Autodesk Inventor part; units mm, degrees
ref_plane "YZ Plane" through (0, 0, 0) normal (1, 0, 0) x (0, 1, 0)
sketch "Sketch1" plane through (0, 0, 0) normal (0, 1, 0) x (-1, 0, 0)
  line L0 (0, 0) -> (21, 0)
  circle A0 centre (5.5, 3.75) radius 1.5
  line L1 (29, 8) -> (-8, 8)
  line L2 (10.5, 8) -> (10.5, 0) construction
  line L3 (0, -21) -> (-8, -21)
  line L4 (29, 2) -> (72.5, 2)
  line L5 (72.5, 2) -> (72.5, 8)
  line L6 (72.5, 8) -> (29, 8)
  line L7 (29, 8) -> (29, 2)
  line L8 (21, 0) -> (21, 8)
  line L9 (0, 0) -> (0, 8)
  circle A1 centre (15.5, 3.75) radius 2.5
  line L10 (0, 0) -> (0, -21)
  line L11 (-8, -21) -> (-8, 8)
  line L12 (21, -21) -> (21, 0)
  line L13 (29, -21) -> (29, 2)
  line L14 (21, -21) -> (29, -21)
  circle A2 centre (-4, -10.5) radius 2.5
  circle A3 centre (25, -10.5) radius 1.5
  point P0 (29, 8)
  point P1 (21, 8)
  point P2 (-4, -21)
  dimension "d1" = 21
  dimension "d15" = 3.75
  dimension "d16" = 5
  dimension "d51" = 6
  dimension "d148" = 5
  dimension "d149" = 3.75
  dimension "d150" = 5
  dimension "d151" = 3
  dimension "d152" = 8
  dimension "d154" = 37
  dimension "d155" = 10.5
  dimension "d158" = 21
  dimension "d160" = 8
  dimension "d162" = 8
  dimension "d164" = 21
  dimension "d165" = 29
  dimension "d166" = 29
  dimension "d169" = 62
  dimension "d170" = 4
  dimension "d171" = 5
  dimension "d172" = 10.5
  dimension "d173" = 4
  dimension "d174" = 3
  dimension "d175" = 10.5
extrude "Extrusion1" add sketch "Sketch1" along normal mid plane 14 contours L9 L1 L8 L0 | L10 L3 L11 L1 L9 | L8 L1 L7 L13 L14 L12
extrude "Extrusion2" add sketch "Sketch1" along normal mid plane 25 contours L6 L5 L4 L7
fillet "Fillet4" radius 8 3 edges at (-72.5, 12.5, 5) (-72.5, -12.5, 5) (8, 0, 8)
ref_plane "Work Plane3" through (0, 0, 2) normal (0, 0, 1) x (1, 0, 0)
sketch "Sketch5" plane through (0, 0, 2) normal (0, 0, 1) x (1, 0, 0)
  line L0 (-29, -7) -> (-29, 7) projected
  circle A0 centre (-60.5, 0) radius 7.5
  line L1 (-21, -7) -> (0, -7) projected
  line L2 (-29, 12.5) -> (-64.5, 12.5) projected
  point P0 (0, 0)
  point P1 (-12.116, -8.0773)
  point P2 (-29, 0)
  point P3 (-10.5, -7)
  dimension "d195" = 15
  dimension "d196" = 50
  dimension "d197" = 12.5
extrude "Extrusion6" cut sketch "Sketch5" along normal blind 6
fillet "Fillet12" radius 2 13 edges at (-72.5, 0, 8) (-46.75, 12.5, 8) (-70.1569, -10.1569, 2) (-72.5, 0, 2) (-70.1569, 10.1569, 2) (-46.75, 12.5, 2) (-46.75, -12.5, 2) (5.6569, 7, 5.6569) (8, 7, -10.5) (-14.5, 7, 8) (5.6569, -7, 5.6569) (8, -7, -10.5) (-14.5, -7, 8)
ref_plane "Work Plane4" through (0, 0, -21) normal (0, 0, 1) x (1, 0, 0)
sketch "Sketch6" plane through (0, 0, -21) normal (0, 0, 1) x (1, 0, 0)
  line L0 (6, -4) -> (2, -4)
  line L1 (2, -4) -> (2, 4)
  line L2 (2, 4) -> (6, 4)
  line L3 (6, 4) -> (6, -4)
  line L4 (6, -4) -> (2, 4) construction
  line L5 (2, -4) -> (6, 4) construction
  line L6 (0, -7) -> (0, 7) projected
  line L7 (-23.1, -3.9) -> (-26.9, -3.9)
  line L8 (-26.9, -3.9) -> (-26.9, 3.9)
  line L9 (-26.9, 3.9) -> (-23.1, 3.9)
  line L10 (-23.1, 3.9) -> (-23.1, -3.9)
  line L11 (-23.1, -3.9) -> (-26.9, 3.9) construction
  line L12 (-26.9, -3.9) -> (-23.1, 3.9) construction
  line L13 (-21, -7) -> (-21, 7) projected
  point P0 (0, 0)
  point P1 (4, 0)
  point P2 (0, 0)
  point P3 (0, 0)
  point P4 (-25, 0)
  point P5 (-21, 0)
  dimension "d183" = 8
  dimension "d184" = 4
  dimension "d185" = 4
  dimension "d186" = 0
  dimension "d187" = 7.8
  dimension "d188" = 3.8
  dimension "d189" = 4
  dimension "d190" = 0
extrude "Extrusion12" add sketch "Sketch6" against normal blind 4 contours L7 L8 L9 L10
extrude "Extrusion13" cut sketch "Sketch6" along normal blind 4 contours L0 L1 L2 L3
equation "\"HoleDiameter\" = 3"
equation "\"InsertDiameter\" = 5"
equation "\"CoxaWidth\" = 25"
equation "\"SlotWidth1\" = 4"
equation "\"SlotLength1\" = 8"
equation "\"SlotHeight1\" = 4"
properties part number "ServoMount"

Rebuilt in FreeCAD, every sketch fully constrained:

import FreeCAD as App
import Part
import Sketcher
from FreeCAD import Vector
Q = App.Units.Quantity


def edges_at(feature, points):
    """Names of the edges that pass closest to the given points."""
    edges = feature.Shape.Edges
    near = lambda p: min(range(len(edges)), key=lambda i: edges[i].distToShape(Part.Vertex(*p))[0])
    return sorted({f"Edge{near(p) + 1}" for p in points})


def add_polygon(sketch, points):
    """Adds a closed chain of lines whose ends are joined by coincident constraints."""
    first, n = sketch.GeometryCount, len(points)
    for a, b in zip(points, points[1:] + points[:1]):
        sketch.addGeometry(Part.LineSegment(App.Vector(*a, 0), App.Vector(*b, 0)), False)
    for i in range(n):
        sketch.addConstraint(Sketcher.Constraint("Coincident", first + i, 2, first + (i + 1) % n, 1))

doc = App.newDocument("Part")
params = doc.addObject("Spreadsheet::Sheet", "Params")
for row, (alias, value) in enumerate([
    ("sketch1_diameter", "3 mm"),
    ("sketch1_diameter2", "5 mm"),
    ("sketch1_width", "8 mm"),
    ("sketch1_width2", "21 mm"),
    ("sketch1_height", "29 mm"),
    ("pad1_length", "14 mm"),
    ("sketch2_height", "6 mm"),
    ("sketch2_width", "43.5 mm"),
    ("pad2_length", "25 mm"),
    ("fillet_radius", "8 mm"),
    ("sketch3_diameter", "15 mm"),
    ("pocket1_length", "6 mm"),
    ("fillet2_radius", "2 mm"),
    ("sketch4_width", "3.8 mm"),
    ("sketch4_height", "7.8 mm"),
    ("pad3_length", "4 mm"),
    ("sketch5_width", "4 mm"),
    ("sketch5_height", "8 mm"),
    ("pocket2_length", "4 mm"),
], start=1):
    params.set(f"A{row}", alias)
    params.set(f"B{row}", "=" + value)
    params.setAlias(f"B{row}", alias)

body = doc.addObject("PartDesign::Body", "Body")

# Sketch on XZ plane
sketch1 = doc.addObject("Sketcher::SketchObject", "Sketch")
body.addObject(sketch1)
sketch1.AttachmentSupport = (doc.XZ_Plane, [""])
sketch1.MapMode = "FlatFace"
add_polygon(sketch1, [(8, 8), (8, -21), (0, -21), (0, 0), (-21, 0), (-21, -21), (-29, -21), (-29, 8)])  # lines 0-7
sketch1.addGeometry(Part.Circle(Vector(-5.5, 3.75, 0), Vector(0, 0, 1), 1.5), False)  # 8
sketch1.addGeometry(Part.Circle(Vector(-15.5, 3.75, 0), Vector(0, 0, 1), 2.5), False)  # 9
sketch1.addGeometry(Part.Circle(Vector(4, -10.5, 0), Vector(0, 0, 1), 2.5), False)  # 10
sketch1.addGeometry(Part.Circle(Vector(-25, -10.5, 0), Vector(0, 0, 1), 1.5), False)  # 11
sketch1.addConstraint(Sketcher.Constraint("Vertical", 0))
sketch1.addConstraint(Sketcher.Constraint("Horizontal", 1))
sketch1.addConstraint(Sketcher.Constraint("Vertical", 2))
sketch1.addConstraint(Sketcher.Constraint("Horizontal", 3))
sketch1.addConstraint(Sketcher.Constraint("Vertical", 4))
sketch1.addConstraint(Sketcher.Constraint("Horizontal", 5))
sketch1.addConstraint(Sketcher.Constraint("Vertical", 6))
sketch1.addConstraint(Sketcher.Constraint("Horizontal", 7))
sketch1.addConstraint(Sketcher.Constraint("Coincident", 2, 2, -1, 1))
sketch1.addConstraint(Sketcher.Constraint("Equal", 9, 10))
sketch1.addConstraint(Sketcher.Constraint("Equal", 8, 11))
sketch1.addConstraint(Sketcher.Constraint("Horizontal", 8, 3, 9, 3))
sketch1.addConstraint(Sketcher.Constraint("Horizontal", 10, 3, 11, 3))
sketch1.addConstraint(Sketcher.Constraint("Horizontal", 1, 2, 4, 2))
sketch1.addConstraint(Sketcher.Constraint("Equal", 1, 5))
sketch1.addConstraint(Sketcher.Constraint("Equal", 3, 2))
sketch1.addConstraint(Sketcher.Constraint("Diameter", 8, Q("3 mm")))
sketch1.addConstraint(Sketcher.Constraint("Diameter", 9, Q("5 mm")))
sketch1.addConstraint(Sketcher.Constraint("DistanceX", 1, 2, 1, 1, Q("8 mm")))
sketch1.addConstraint(Sketcher.Constraint("DistanceX", 3, 2, 3, 1, Q("21 mm")))
sketch1.addConstraint(Sketcher.Constraint("DistanceY", 0, 2, 0, 1, Q("29 mm")))
sketch1.addConstraint(Sketcher.Constraint("DistanceX", -1, 1, 10, 3, Q("4 mm")))
sketch1.addConstraint(Sketcher.Constraint("DistanceX", 11, 3, 10, 3, Q("29 mm")))
sketch1.addConstraint(Sketcher.Constraint("DistanceY", 10, 3, -1, 1, Q("10.5 mm")))
sketch1.addConstraint(Sketcher.Constraint("DistanceY", -1, 1, 8, 3, Q("3.75 mm")))
sketch1.addConstraint(Sketcher.Constraint("DistanceX", 9, 3, 8, 3, Q("10 mm")))
sketch1.addConstraint(Sketcher.Constraint("DistanceX", 8, 3, -1, 1, Q("5.5 mm")))
sketch1.setExpression("Constraints[24]", "Params.sketch1_diameter")
sketch1.setExpression("Constraints[25]", "Params.sketch1_diameter2")
sketch1.setExpression("Constraints[26]", "Params.sketch1_width")
sketch1.setExpression("Constraints[27]", "Params.sketch1_width2")
sketch1.setExpression("Constraints[28]", "Params.sketch1_height")
pad1 = doc.addObject("PartDesign::Pad", "Pad")
body.addObject(pad1)
pad1.Profile = sketch1
pad1.setExpression("Length", "Params.pad1_length")
pad1.Midplane = True

# Sketch on XZ plane
sketch2 = doc.addObject("Sketcher::SketchObject", "Sketch001")
body.addObject(sketch2)
sketch2.AttachmentSupport = (doc.XZ_Plane, [""])
sketch2.MapMode = "FlatFace"
add_polygon(sketch2, [(-72.5, 8), (-29, 8), (-29, 2), (-72.5, 2)])  # lines 0-3
sketch2.addConstraint(Sketcher.Constraint("Horizontal", 0))
sketch2.addConstraint(Sketcher.Constraint("Vertical", 1))
sketch2.addConstraint(Sketcher.Constraint("Horizontal", 2))
sketch2.addConstraint(Sketcher.Constraint("Vertical", 3))
sketch2.addConstraint(Sketcher.Constraint("DistanceY", 1, 2, 1, 1, Q("6 mm")))
sketch2.addConstraint(Sketcher.Constraint("DistanceX", 0, 2, -1, 1, Q("29 mm")))
sketch2.addConstraint(Sketcher.Constraint("DistanceY", -1, 1, 0, 2, Q("8 mm")))
sketch2.addConstraint(Sketcher.Constraint("DistanceX", 0, 1, 0, 2, Q("43.5 mm")))
sketch2.setExpression("Constraints[8]", "Params.sketch2_height")
sketch2.setExpression("Constraints[11]", "Params.sketch2_width")
pad2 = doc.addObject("PartDesign::Pad", "Pad001")
body.addObject(pad2)
pad2.Profile = sketch2
pad2.setExpression("Length", "Params.pad2_length")
pad2.Midplane = True
doc.recompute()

fillet = doc.addObject("PartDesign::Fillet", "Fillet")
body.addObject(fillet)
fillet.Base = (pad2, edges_at(pad2, [(-72.5, 12.5, 5), (-72.5, -12.5, 5), (8, 0, 8)]))
fillet.setExpression("Radius", "Params.fillet_radius")

# Sketch on XY plane
sketch3 = doc.addObject("Sketcher::SketchObject", "Sketch002")
body.addObject(sketch3)
sketch3.AttachmentSupport = (doc.XY_Plane, [""])
sketch3.MapMode = "FlatFace"
sketch3.AttachmentOffset = App.Placement(Vector(0, 0, 2), App.Rotation())
sketch3.addGeometry(Part.Circle(Vector(-60.5, 0, 0), Vector(0, 0, 1), 7.5), False)
sketch3.addConstraint(Sketcher.Constraint("PointOnObject", 0, 3, -1))
sketch3.addConstraint(Sketcher.Constraint("Diameter", 0, Q("15 mm")))
sketch3.addConstraint(Sketcher.Constraint("DistanceX", 0, 3, -1, 1, Q("60.5 mm")))
sketch3.setExpression("Constraints[1]", "Params.sketch3_diameter")
pocket1 = doc.addObject("PartDesign::Pocket", "Pocket")
body.addObject(pocket1)
pocket1.Profile = sketch3
pocket1.setExpression("Length", "Params.pocket1_length")
pocket1.Reversed = True
doc.recompute()

fillet2 = doc.addObject("PartDesign::Fillet", "Fillet001")
body.addObject(fillet2)
fillet2.Base = (pocket1, edges_at(pocket1, [
    (-72.5, 0, 8),
    (-46.75, 12.5, 8),
    (-70.157, -10.157, 2),
    (-72.5, 0, 2),
    (-70.157, 10.157, 2),
    (-46.75, 12.5, 2),
    (-46.75, -12.5, 2),
    (5.657, 7, 5.657),
    (8, 7, -10.5),
    (-14.5, 7, 8),
    (5.657, -7, 5.657),
    (8, -7, -10.5),
    (-14.5, -7, 8),
]))
fillet2.setExpression("Radius", "Params.fillet2_radius")

# Sketch on XY plane
sketch4 = doc.addObject("Sketcher::SketchObject", "Sketch003")
body.addObject(sketch4)
sketch4.AttachmentSupport = (doc.XY_Plane, [""])
sketch4.MapMode = "FlatFace"
sketch4.AttachmentOffset = App.Placement(Vector(0, 0, -21), App.Rotation())
add_polygon(sketch4, [(-26.9, -3.9), (-23.1, -3.9), (-23.1, 3.9), (-26.9, 3.9)])  # lines 0-3
sketch4.addConstraint(Sketcher.Constraint("Horizontal", 0))
sketch4.addConstraint(Sketcher.Constraint("Vertical", 1))
sketch4.addConstraint(Sketcher.Constraint("Horizontal", 2))
sketch4.addConstraint(Sketcher.Constraint("Vertical", 3))
sketch4.addConstraint(Sketcher.Constraint("DistanceX", 0, 1, 0, 2, Q("3.8 mm")))
sketch4.addConstraint(Sketcher.Constraint("DistanceY", 1, 1, 1, 2, Q("7.8 mm")))
sketch4.addConstraint(Sketcher.Constraint("DistanceX", 0, 2, -1, 1, Q("23.1 mm")))
sketch4.addConstraint(Sketcher.Constraint("DistanceY", 0, 2, -1, 1, Q("3.9 mm")))
sketch4.setExpression("Constraints[8]", "Params.sketch4_width")
sketch4.setExpression("Constraints[9]", "Params.sketch4_height")
pad3 = doc.addObject("PartDesign::Pad", "Pad002")
body.addObject(pad3)
pad3.Profile = sketch4
pad3.setExpression("Length", "Params.pad3_length")
pad3.Reversed = True

# Sketch on XY plane
sketch5 = doc.addObject("Sketcher::SketchObject", "Sketch004")
body.addObject(sketch5)
sketch5.AttachmentSupport = (doc.XY_Plane, [""])
sketch5.MapMode = "FlatFace"
sketch5.AttachmentOffset = App.Placement(Vector(0, 0, -21), App.Rotation())
add_polygon(sketch5, [(2, -4), (6, -4), (6, 4), (2, 4)])  # lines 0-3
sketch5.addConstraint(Sketcher.Constraint("Horizontal", 0))
sketch5.addConstraint(Sketcher.Constraint("Vertical", 1))
sketch5.addConstraint(Sketcher.Constraint("Horizontal", 2))
sketch5.addConstraint(Sketcher.Constraint("Vertical", 3))
sketch5.addConstraint(Sketcher.Constraint("DistanceX", 0, 1, 0, 2, Q("4 mm")))
sketch5.addConstraint(Sketcher.Constraint("DistanceY", 1, 1, 1, 2, Q("8 mm")))
sketch5.addConstraint(Sketcher.Constraint("DistanceY", 0, 2, -1, 1, Q("4 mm")))
sketch5.addConstraint(Sketcher.Constraint("DistanceX", -1, 1, 0, 2, Q("6 mm")))
sketch5.setExpression("Constraints[8]", "Params.sketch5_width")
sketch5.setExpression("Constraints[9]", "Params.sketch5_height")
pocket2 = doc.addObject("PartDesign::Pocket", "Pocket001")
body.addObject(pocket2)
pocket2.Profile = sketch5
pocket2.setExpression("Length", "Params.pocket2_length")
pocket2.Reversed = True

doc.recompute()
